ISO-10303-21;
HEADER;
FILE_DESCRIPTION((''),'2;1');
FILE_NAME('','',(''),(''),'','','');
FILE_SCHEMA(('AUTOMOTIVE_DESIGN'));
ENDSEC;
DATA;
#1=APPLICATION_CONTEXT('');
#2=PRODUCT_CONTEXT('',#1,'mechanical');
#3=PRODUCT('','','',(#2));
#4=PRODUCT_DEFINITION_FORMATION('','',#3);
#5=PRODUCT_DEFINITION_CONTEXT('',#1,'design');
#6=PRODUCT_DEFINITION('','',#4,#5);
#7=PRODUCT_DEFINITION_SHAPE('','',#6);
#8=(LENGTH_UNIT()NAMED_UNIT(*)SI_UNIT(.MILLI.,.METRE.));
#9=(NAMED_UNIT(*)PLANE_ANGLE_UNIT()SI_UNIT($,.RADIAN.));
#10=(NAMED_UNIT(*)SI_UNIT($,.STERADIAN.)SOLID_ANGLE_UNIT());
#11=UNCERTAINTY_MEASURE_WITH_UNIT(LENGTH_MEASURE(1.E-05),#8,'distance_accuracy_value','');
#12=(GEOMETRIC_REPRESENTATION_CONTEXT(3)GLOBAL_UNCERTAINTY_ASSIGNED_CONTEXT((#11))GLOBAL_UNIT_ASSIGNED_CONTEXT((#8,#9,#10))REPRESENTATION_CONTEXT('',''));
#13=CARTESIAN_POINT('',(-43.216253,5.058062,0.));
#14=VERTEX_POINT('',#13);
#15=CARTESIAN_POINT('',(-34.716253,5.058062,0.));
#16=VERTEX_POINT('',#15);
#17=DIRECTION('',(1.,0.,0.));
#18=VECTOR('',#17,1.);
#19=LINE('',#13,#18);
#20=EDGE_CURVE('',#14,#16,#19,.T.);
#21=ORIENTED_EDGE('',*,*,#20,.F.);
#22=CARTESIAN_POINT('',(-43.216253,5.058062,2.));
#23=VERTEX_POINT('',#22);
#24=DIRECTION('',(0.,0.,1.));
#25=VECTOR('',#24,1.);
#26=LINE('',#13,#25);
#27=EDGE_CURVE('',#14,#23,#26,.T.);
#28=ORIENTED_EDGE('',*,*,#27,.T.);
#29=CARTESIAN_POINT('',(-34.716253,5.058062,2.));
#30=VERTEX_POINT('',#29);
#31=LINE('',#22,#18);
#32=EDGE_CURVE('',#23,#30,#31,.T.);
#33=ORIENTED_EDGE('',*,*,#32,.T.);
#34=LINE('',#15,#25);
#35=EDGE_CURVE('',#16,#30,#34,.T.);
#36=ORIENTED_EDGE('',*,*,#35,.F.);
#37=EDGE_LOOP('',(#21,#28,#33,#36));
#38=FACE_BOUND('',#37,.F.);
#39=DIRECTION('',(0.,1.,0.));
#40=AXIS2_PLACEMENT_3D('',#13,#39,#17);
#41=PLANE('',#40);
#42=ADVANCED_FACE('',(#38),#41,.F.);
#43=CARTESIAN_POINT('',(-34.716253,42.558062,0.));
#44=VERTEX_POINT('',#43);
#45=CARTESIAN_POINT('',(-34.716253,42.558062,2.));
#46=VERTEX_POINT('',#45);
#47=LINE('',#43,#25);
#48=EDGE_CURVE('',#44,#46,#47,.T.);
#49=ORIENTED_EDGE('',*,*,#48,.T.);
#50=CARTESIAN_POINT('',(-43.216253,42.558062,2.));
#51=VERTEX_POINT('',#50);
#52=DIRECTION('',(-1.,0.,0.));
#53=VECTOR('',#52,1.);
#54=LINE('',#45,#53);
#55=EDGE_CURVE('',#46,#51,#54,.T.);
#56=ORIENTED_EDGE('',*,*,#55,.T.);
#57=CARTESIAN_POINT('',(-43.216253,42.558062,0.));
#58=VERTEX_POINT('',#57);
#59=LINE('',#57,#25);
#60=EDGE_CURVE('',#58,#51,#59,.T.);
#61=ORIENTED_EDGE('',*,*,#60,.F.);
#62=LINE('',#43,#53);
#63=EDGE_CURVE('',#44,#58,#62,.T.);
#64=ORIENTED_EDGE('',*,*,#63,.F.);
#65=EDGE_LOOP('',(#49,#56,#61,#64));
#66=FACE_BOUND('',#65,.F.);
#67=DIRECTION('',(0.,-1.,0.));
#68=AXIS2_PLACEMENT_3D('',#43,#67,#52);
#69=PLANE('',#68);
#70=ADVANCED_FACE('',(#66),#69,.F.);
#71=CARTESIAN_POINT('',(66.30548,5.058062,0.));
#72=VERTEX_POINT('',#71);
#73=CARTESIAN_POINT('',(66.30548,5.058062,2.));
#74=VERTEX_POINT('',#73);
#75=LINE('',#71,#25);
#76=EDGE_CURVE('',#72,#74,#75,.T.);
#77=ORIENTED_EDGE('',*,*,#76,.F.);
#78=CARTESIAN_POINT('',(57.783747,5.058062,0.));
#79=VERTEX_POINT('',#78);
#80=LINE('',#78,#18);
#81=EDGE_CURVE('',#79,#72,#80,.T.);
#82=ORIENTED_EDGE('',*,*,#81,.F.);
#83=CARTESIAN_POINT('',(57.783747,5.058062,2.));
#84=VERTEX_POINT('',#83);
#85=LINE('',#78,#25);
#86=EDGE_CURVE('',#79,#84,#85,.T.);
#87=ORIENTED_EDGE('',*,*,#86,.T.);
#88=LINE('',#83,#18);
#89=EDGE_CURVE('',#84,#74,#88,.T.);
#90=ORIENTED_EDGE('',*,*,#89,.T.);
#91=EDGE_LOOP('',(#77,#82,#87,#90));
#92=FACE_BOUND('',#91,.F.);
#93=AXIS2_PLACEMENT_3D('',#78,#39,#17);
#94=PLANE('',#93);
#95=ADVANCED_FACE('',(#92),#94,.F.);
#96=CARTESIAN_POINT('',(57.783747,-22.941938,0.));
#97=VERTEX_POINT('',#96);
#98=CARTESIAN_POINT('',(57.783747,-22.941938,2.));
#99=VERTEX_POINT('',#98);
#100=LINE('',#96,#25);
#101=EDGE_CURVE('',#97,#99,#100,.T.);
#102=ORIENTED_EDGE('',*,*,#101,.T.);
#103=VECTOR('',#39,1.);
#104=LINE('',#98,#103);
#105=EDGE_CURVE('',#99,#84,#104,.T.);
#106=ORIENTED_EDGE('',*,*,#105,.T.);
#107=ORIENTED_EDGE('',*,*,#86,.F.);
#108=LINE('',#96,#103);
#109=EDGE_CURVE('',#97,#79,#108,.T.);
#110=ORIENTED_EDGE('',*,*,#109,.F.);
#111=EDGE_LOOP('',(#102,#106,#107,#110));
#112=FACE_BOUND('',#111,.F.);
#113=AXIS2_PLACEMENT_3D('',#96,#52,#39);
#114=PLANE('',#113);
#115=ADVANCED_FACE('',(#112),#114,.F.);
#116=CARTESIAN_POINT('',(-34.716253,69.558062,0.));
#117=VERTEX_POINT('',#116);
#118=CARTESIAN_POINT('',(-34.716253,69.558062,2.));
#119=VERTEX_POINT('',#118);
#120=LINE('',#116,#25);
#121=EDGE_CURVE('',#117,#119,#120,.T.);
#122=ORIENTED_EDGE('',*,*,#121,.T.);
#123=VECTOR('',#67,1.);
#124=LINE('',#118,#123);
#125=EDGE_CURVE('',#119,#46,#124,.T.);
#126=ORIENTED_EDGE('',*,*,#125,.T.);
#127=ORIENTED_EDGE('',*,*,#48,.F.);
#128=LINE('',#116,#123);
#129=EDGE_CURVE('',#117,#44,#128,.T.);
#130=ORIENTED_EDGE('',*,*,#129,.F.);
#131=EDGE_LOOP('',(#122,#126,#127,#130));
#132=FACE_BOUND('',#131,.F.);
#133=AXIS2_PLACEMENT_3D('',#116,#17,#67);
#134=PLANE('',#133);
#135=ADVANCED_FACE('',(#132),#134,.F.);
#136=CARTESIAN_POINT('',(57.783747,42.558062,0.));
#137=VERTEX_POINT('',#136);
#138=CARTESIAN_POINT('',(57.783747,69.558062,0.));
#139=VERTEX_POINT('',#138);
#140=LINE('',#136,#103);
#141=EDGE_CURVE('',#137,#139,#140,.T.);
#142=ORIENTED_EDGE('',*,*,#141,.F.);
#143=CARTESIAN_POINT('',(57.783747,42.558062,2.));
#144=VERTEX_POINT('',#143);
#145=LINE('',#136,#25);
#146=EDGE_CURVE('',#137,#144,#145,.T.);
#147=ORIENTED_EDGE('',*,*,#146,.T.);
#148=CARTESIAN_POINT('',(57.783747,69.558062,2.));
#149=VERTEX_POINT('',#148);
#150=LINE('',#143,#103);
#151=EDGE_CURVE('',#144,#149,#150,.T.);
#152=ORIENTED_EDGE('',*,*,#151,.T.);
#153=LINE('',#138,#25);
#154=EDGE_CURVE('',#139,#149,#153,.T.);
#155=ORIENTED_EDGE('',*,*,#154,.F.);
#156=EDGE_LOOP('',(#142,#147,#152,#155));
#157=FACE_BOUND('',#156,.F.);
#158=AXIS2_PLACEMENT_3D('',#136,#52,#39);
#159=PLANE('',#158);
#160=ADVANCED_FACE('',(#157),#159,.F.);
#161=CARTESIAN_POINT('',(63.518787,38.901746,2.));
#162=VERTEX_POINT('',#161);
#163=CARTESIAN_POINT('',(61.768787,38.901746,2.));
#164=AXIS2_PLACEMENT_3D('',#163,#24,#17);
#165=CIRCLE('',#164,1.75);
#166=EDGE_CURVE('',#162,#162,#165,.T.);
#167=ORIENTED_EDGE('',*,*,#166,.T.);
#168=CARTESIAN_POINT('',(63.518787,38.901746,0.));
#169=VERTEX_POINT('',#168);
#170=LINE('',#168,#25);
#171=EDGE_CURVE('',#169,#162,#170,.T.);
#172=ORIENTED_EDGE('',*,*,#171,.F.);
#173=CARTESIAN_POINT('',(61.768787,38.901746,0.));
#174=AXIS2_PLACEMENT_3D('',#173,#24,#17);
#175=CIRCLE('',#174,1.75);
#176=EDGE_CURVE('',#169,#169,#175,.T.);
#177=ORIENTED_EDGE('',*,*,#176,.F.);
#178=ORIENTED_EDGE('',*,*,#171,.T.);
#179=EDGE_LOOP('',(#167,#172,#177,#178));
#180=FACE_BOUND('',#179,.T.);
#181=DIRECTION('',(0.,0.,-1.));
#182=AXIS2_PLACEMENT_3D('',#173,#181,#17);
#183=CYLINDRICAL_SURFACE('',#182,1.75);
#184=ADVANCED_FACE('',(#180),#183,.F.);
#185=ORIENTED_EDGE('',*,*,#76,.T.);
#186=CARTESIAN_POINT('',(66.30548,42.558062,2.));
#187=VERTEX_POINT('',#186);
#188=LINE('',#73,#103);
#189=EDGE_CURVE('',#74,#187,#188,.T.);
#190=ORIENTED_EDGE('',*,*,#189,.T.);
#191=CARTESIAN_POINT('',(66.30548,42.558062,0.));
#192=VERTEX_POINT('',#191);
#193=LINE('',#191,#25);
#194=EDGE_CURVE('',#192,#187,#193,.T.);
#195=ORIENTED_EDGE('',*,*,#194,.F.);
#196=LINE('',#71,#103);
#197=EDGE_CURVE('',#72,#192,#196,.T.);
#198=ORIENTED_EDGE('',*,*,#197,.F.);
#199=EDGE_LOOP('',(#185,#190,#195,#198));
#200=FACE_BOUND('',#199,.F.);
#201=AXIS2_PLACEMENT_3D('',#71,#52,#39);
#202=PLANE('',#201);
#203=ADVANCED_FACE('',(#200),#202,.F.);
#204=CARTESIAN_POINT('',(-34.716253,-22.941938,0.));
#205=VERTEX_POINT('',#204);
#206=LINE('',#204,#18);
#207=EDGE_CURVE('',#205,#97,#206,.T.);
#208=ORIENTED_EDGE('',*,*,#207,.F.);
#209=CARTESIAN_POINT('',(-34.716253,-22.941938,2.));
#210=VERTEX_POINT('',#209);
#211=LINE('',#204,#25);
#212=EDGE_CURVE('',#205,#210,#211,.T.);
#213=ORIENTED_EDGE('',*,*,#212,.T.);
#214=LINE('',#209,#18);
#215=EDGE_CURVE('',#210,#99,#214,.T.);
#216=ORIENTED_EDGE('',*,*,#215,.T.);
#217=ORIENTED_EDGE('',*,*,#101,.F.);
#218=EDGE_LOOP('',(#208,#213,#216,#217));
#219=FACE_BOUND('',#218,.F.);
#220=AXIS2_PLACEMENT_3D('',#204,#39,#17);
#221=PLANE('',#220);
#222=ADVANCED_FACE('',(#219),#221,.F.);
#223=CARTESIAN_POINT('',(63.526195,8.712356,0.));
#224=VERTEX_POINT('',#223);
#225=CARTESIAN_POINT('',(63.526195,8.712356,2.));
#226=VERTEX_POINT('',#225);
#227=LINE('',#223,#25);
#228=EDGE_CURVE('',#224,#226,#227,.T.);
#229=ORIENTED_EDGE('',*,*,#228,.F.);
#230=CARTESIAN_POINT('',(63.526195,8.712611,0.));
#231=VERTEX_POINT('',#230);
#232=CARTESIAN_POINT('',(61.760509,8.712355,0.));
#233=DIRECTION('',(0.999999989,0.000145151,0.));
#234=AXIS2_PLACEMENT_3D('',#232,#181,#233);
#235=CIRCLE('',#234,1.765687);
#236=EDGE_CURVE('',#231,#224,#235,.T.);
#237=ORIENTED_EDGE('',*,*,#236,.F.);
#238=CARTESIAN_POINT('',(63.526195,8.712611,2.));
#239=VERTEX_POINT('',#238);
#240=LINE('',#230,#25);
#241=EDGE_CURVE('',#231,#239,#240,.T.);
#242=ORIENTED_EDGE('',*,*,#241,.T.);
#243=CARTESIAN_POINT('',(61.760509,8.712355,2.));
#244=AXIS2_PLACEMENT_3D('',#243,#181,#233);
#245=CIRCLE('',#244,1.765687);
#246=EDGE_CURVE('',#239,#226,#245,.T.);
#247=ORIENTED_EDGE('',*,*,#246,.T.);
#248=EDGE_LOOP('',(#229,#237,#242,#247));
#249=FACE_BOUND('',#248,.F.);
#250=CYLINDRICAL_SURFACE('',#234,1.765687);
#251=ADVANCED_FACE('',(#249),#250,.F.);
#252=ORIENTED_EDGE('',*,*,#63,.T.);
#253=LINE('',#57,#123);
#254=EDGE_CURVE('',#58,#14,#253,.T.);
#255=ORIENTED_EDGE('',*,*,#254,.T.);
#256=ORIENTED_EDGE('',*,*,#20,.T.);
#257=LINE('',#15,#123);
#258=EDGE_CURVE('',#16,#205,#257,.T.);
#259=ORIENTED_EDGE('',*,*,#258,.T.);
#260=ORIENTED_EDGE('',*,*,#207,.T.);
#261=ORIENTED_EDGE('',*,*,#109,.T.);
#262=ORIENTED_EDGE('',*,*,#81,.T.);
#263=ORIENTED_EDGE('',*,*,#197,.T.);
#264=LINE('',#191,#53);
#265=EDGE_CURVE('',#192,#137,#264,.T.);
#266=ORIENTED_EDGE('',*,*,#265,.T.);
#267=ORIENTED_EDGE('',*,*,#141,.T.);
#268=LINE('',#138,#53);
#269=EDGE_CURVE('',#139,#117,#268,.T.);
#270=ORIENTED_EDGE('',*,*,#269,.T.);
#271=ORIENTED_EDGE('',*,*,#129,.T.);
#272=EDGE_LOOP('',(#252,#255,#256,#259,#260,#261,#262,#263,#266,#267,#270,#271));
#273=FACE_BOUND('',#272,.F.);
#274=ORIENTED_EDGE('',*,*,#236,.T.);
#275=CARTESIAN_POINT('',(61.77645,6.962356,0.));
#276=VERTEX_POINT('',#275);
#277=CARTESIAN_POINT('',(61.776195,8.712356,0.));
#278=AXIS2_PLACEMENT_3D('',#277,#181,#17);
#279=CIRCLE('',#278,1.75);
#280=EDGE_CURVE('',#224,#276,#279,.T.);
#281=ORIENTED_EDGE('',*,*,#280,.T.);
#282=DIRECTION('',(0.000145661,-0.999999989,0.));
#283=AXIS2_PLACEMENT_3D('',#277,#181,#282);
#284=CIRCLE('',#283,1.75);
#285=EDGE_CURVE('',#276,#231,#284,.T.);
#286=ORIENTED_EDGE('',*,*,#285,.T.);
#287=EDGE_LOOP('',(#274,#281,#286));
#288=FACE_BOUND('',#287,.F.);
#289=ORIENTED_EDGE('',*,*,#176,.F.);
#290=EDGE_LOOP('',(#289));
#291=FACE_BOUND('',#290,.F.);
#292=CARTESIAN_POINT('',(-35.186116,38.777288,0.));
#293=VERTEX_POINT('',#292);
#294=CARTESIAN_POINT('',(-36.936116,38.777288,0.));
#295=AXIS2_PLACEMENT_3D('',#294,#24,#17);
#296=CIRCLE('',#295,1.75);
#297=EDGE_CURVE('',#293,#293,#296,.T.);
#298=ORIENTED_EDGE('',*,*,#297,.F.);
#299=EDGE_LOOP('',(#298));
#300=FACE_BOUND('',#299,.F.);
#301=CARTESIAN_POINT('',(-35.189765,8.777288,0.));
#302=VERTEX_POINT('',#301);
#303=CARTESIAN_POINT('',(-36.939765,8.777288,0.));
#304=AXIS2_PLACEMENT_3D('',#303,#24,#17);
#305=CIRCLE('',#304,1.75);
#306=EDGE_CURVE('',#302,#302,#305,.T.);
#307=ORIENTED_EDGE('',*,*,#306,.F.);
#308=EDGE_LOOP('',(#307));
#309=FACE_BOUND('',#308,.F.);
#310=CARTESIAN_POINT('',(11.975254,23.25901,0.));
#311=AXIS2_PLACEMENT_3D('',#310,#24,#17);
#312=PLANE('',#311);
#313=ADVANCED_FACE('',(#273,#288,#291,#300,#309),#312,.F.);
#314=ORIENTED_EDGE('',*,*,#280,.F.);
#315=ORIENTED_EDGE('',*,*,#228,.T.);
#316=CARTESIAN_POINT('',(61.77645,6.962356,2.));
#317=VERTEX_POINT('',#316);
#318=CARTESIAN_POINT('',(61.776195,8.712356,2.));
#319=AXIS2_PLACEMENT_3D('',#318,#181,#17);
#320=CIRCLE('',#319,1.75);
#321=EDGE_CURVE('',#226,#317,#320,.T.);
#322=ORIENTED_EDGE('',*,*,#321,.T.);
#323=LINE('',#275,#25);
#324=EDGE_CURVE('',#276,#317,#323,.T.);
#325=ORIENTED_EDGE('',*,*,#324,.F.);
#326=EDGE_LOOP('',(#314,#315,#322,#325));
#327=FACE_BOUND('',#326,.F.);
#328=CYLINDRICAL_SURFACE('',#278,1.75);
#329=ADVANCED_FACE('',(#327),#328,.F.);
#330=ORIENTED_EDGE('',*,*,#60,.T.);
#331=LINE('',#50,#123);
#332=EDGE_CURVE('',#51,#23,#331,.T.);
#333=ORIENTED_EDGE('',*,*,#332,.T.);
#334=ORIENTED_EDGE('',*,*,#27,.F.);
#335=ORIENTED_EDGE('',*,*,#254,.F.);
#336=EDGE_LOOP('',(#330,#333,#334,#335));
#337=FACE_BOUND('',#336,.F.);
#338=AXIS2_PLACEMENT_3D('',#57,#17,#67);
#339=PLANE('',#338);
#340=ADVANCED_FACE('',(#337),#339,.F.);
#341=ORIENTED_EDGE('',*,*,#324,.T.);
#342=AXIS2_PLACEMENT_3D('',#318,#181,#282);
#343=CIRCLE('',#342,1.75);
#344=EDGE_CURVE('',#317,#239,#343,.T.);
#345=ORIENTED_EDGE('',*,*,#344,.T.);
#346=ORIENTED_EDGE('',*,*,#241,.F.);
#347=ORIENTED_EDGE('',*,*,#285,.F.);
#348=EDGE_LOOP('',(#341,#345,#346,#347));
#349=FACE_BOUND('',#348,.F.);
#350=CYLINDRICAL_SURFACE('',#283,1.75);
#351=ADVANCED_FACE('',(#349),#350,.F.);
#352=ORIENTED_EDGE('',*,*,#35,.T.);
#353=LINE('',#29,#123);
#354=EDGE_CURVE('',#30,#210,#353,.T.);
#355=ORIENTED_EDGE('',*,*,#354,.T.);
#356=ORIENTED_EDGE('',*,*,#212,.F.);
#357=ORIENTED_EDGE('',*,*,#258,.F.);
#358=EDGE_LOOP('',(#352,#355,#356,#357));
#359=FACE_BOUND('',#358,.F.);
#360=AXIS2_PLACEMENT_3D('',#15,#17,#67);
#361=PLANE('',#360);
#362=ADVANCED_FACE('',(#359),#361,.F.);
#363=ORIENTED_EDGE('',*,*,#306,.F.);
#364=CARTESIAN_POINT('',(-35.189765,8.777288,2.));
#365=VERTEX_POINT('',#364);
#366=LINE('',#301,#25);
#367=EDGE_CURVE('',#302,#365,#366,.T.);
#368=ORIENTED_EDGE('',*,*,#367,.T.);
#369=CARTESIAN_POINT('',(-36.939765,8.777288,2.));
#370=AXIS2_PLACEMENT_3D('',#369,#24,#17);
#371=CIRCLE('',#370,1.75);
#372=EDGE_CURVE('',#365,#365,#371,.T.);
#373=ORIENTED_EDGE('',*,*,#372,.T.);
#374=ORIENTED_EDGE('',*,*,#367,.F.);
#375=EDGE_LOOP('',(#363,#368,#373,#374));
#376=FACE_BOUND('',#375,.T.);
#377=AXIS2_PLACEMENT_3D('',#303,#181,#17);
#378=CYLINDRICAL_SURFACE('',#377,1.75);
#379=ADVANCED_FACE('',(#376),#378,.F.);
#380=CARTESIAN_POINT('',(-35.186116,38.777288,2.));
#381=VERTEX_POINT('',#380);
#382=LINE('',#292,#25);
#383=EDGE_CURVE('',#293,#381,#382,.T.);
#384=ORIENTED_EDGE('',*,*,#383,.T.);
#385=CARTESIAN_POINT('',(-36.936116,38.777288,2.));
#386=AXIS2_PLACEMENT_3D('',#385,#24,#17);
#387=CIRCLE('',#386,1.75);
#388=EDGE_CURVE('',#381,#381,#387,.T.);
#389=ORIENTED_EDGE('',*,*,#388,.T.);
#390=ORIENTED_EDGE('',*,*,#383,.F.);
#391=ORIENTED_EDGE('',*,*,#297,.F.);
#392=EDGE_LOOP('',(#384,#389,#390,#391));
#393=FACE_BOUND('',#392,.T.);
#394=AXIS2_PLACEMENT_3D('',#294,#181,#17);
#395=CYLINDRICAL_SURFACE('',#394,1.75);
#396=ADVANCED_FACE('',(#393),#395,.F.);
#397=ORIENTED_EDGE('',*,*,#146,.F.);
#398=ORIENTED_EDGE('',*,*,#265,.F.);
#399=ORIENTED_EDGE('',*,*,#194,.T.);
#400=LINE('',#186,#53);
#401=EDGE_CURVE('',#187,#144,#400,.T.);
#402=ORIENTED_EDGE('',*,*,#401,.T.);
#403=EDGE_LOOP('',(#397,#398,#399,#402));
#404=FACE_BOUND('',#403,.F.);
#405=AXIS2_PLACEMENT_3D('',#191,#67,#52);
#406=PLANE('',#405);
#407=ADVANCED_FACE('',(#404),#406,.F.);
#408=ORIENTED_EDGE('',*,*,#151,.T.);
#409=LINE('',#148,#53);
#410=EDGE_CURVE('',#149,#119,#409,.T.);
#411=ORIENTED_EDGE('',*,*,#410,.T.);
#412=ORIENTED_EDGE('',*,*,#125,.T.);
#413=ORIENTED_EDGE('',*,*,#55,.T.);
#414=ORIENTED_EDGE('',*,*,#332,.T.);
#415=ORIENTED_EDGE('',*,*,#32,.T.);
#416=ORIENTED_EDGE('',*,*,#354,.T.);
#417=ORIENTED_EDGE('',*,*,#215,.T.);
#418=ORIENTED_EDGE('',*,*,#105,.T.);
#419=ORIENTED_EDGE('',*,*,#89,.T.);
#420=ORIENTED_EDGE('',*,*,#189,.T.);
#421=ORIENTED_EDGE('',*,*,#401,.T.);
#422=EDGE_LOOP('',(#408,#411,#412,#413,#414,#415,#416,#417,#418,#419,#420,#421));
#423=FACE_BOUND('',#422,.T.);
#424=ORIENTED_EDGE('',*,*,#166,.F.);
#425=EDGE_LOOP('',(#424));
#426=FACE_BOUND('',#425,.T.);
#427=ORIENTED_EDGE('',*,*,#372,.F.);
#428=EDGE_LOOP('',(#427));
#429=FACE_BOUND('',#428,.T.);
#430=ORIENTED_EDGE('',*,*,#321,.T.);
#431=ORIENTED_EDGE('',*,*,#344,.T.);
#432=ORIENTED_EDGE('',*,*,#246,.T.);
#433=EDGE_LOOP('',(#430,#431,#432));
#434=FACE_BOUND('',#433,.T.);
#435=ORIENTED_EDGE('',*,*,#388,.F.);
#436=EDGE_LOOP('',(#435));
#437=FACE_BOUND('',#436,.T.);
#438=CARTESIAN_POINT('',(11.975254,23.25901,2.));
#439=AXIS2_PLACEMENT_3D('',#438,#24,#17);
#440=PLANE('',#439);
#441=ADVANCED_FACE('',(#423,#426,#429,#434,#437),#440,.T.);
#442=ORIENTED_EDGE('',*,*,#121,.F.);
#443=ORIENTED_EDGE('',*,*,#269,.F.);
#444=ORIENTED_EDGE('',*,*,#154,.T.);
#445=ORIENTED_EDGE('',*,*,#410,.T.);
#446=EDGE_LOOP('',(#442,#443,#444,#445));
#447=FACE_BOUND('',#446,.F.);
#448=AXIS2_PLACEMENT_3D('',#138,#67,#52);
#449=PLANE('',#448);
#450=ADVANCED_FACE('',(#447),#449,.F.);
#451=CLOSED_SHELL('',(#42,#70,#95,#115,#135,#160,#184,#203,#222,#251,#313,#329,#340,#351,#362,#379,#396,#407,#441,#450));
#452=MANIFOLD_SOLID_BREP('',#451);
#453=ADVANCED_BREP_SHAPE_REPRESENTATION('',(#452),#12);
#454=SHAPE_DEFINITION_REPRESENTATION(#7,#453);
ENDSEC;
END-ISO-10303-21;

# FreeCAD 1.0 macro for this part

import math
import FreeCAD as App
import Part
import Sketcher
from FreeCAD import Vector
Q = App.Units.Quantity


def add_polygon(sketch, points):
    """Adds a closed chain of lines whose ends are joined by coincident constraints."""
    first, n = sketch.GeometryCount, len(points)
    for a, b in zip(points, points[1:] + points[:1]):
        sketch.addGeometry(Part.LineSegment(App.Vector(*a, 0), App.Vector(*b, 0)), False)
    for i in range(n):
        sketch.addConstraint(Sketcher.Constraint("Coincident", first + i, 2, first + (i + 1) % n, 1))

doc = App.newDocument("Part")
params = doc.addObject("Spreadsheet::Sheet", "Params")
for row, (alias, value) in enumerate([
    ("sketch1_diameter", "3.5 mm"),
    ("sketch1_diameter2", "3.5 mm"),
    ("sketch1_diameter3", "3.5 mm"),
    ("sketch1_height", "27 mm"),
    ("sketch1_height2", "28 mm"),
    ("pad1_length", "2 mm"),
], start=1):
    params.set(f"A{row}", alias)
    params.set(f"B{row}", "=" + value)
    params.setAlias(f"B{row}", alias)

body = doc.addObject("PartDesign::Body", "Body")

# Sketch on XY plane
sketch1 = body.newObject("Sketcher::SketchObject", "Sketch")
sketch1.AttachmentSupport = (doc.getObject("XY_Plane"), [""])
sketch1.MapMode = "FlatFace"
add_polygon(sketch1, [(57.783747, 69.558062), (-34.716253, 69.558062), (-34.716253, 42.558062), (-43.216253, 42.558062), (-43.216253, 5.058062), (-34.716253, 5.058062), (-34.716253, -22.941938), (57.783747, -22.941938), (57.783747, 5.058062), (66.30548, 5.058062), (66.30548, 42.558062), (57.783747, 42.558062)])  # lines 0-11
sketch1.addGeometry(Part.ArcOfCircle(Part.Circle(Vector(61.776195, 8.712356, 0), Vector(0, 0, 1), 1.75), math.radians(0.008346), math.radians(270.008346)), False)  # 12
sketch1.addGeometry(Part.ArcOfCircle(Part.Circle(Vector(61.760509, 8.712355, 0), Vector(0, 0, 1), 1.765687), math.radians(0.000045), math.radians(0.008317)), False)  # 13
sketch1.addGeometry(Part.ArcOfCircle(Part.Circle(Vector(61.776195, 8.712356, 0), Vector(0, 0, 1), 1.75), math.radians(-89.991654), math.radians(0)), False)  # 14
sketch1.addGeometry(Part.Circle(Vector(-36.939765, 8.777288, 0), Vector(0, 0, 1), 1.75), False)  # 15
sketch1.addGeometry(Part.Circle(Vector(-36.936116, 38.777288, 0), Vector(0, 0, 1), 1.75), False)  # 16
sketch1.addGeometry(Part.Circle(Vector(61.768787, 38.901746, 0), Vector(0, 0, 1), 1.75), False)  # 17
sketch1.addConstraint([
    Sketcher.Constraint("Coincident", 12, 1, 13, 2),
    Sketcher.Constraint("Coincident", 13, 1, 14, 2),
    Sketcher.Constraint("Coincident", 14, 1, 12, 2),
    Sketcher.Constraint("Horizontal", 0),
    Sketcher.Constraint("Vertical", 1),
    Sketcher.Constraint("Horizontal", 2),
    Sketcher.Constraint("Vertical", 3),
    Sketcher.Constraint("Horizontal", 4),
    Sketcher.Constraint("Vertical", 5),
    Sketcher.Constraint("Horizontal", 6),
    Sketcher.Constraint("Vertical", 7),
    Sketcher.Constraint("Horizontal", 8),
    Sketcher.Constraint("Vertical", 9),
    Sketcher.Constraint("Horizontal", 10),
    Sketcher.Constraint("Vertical", 11),
    Sketcher.Constraint("Diameter", 15, Q("3.5 mm")),
    Sketcher.Constraint("Diameter", 16, Q("3.5 mm")),
    Sketcher.Constraint("Diameter", 17, Q("3.5 mm")),
    Sketcher.Constraint("DistanceY", 1, 2, 1, 1, Q("27 mm")),
    Sketcher.Constraint("DistanceY", 5, 2, 5, 1, Q("28 mm")),
    Sketcher.Constraint("DistanceY", 7, 1, 7, 2, Q("28 mm")),
    Sketcher.Constraint("DistanceY", 11, 1, 11, 2, Q("27 mm")),
    Sketcher.Constraint("Radius", 12, Q("1.75 mm")),
    Sketcher.Constraint("Radius", 14, Q("1.75 mm")),
    Sketcher.Constraint("DistanceX", 0, 2, 0, 1, Q("92.5 mm")),
    Sketcher.Constraint("DistanceX", 2, 2, 2, 1, Q("8.5 mm")),
    Sketcher.Constraint("DistanceX", 4, 1, 4, 2, Q("8.5 mm")),
    Sketcher.Constraint("DistanceX", 6, 1, 6, 2, Q("92.5 mm")),
    Sketcher.Constraint("DistanceY", 3, 2, 3, 1, Q("37.5 mm")),
    Sketcher.Constraint("DistanceY", 15, 3, 16, 3, Q("30 mm")),
    Sketcher.Constraint("DistanceY", 14, 1, 13, 3, Q("1.749999 mm")),
    Sketcher.Constraint("DistanceY", 14, 1, 13, 1, Q("1.75 mm")),
    Sketcher.Constraint("Radius", 13, Q("1.765687 mm")),
    Sketcher.Constraint("DistanceX", 8, 1, 8, 2, Q("8.521733 mm")),
    Sketcher.Constraint("DistanceX", -1, 1, 13, 3, Q("61.760509 mm")),
    Sketcher.Constraint("DistanceY", -1, 1, 15, 3, Q("8.777288 mm")),
    Sketcher.Constraint("DistanceX", -1, 1, 8, 2, Q("66.30548 mm")),
    Sketcher.Constraint("DistanceY", -1, 1, 12, 1, Q("8.712611 mm")),
    Sketcher.Constraint("DistanceX", -1, 1, 14, 1, Q("61.77645 mm")),
    Sketcher.Constraint("DistanceX", 15, 3, 12, 3, Q("98.71596 mm")),
    Sketcher.Constraint("DistanceY", 12, 3, 15, 3, Q("0.064932 mm")),
    Sketcher.Constraint("DistanceX", 15, 3, 16, 3, Q("0.003649 mm")),
    Sketcher.Constraint("DistanceX", 17, 3, 12, 3, Q("0.007408 mm")),
    Sketcher.Constraint("DistanceY", 12, 3, 17, 3, Q("30.18939 mm")),
    Sketcher.Constraint("DistanceY", 8, 2, 12, 1, Q("3.654549 mm")),
])
sketch1.setExpression("Constraints[27]", "Params.sketch1_diameter")
sketch1.setExpression("Constraints[28]", "Params.sketch1_diameter2")
sketch1.setExpression("Constraints[29]", "Params.sketch1_diameter3")
sketch1.setExpression("Constraints[30]", "Params.sketch1_height")
sketch1.setExpression("Constraints[31]", "Params.sketch1_height2")
pad1 = body.newObject("PartDesign::Pad", "Pad")
pad1.Profile = sketch1
pad1.setExpression("Length", "Params.pad1_length")

doc.recompute()
